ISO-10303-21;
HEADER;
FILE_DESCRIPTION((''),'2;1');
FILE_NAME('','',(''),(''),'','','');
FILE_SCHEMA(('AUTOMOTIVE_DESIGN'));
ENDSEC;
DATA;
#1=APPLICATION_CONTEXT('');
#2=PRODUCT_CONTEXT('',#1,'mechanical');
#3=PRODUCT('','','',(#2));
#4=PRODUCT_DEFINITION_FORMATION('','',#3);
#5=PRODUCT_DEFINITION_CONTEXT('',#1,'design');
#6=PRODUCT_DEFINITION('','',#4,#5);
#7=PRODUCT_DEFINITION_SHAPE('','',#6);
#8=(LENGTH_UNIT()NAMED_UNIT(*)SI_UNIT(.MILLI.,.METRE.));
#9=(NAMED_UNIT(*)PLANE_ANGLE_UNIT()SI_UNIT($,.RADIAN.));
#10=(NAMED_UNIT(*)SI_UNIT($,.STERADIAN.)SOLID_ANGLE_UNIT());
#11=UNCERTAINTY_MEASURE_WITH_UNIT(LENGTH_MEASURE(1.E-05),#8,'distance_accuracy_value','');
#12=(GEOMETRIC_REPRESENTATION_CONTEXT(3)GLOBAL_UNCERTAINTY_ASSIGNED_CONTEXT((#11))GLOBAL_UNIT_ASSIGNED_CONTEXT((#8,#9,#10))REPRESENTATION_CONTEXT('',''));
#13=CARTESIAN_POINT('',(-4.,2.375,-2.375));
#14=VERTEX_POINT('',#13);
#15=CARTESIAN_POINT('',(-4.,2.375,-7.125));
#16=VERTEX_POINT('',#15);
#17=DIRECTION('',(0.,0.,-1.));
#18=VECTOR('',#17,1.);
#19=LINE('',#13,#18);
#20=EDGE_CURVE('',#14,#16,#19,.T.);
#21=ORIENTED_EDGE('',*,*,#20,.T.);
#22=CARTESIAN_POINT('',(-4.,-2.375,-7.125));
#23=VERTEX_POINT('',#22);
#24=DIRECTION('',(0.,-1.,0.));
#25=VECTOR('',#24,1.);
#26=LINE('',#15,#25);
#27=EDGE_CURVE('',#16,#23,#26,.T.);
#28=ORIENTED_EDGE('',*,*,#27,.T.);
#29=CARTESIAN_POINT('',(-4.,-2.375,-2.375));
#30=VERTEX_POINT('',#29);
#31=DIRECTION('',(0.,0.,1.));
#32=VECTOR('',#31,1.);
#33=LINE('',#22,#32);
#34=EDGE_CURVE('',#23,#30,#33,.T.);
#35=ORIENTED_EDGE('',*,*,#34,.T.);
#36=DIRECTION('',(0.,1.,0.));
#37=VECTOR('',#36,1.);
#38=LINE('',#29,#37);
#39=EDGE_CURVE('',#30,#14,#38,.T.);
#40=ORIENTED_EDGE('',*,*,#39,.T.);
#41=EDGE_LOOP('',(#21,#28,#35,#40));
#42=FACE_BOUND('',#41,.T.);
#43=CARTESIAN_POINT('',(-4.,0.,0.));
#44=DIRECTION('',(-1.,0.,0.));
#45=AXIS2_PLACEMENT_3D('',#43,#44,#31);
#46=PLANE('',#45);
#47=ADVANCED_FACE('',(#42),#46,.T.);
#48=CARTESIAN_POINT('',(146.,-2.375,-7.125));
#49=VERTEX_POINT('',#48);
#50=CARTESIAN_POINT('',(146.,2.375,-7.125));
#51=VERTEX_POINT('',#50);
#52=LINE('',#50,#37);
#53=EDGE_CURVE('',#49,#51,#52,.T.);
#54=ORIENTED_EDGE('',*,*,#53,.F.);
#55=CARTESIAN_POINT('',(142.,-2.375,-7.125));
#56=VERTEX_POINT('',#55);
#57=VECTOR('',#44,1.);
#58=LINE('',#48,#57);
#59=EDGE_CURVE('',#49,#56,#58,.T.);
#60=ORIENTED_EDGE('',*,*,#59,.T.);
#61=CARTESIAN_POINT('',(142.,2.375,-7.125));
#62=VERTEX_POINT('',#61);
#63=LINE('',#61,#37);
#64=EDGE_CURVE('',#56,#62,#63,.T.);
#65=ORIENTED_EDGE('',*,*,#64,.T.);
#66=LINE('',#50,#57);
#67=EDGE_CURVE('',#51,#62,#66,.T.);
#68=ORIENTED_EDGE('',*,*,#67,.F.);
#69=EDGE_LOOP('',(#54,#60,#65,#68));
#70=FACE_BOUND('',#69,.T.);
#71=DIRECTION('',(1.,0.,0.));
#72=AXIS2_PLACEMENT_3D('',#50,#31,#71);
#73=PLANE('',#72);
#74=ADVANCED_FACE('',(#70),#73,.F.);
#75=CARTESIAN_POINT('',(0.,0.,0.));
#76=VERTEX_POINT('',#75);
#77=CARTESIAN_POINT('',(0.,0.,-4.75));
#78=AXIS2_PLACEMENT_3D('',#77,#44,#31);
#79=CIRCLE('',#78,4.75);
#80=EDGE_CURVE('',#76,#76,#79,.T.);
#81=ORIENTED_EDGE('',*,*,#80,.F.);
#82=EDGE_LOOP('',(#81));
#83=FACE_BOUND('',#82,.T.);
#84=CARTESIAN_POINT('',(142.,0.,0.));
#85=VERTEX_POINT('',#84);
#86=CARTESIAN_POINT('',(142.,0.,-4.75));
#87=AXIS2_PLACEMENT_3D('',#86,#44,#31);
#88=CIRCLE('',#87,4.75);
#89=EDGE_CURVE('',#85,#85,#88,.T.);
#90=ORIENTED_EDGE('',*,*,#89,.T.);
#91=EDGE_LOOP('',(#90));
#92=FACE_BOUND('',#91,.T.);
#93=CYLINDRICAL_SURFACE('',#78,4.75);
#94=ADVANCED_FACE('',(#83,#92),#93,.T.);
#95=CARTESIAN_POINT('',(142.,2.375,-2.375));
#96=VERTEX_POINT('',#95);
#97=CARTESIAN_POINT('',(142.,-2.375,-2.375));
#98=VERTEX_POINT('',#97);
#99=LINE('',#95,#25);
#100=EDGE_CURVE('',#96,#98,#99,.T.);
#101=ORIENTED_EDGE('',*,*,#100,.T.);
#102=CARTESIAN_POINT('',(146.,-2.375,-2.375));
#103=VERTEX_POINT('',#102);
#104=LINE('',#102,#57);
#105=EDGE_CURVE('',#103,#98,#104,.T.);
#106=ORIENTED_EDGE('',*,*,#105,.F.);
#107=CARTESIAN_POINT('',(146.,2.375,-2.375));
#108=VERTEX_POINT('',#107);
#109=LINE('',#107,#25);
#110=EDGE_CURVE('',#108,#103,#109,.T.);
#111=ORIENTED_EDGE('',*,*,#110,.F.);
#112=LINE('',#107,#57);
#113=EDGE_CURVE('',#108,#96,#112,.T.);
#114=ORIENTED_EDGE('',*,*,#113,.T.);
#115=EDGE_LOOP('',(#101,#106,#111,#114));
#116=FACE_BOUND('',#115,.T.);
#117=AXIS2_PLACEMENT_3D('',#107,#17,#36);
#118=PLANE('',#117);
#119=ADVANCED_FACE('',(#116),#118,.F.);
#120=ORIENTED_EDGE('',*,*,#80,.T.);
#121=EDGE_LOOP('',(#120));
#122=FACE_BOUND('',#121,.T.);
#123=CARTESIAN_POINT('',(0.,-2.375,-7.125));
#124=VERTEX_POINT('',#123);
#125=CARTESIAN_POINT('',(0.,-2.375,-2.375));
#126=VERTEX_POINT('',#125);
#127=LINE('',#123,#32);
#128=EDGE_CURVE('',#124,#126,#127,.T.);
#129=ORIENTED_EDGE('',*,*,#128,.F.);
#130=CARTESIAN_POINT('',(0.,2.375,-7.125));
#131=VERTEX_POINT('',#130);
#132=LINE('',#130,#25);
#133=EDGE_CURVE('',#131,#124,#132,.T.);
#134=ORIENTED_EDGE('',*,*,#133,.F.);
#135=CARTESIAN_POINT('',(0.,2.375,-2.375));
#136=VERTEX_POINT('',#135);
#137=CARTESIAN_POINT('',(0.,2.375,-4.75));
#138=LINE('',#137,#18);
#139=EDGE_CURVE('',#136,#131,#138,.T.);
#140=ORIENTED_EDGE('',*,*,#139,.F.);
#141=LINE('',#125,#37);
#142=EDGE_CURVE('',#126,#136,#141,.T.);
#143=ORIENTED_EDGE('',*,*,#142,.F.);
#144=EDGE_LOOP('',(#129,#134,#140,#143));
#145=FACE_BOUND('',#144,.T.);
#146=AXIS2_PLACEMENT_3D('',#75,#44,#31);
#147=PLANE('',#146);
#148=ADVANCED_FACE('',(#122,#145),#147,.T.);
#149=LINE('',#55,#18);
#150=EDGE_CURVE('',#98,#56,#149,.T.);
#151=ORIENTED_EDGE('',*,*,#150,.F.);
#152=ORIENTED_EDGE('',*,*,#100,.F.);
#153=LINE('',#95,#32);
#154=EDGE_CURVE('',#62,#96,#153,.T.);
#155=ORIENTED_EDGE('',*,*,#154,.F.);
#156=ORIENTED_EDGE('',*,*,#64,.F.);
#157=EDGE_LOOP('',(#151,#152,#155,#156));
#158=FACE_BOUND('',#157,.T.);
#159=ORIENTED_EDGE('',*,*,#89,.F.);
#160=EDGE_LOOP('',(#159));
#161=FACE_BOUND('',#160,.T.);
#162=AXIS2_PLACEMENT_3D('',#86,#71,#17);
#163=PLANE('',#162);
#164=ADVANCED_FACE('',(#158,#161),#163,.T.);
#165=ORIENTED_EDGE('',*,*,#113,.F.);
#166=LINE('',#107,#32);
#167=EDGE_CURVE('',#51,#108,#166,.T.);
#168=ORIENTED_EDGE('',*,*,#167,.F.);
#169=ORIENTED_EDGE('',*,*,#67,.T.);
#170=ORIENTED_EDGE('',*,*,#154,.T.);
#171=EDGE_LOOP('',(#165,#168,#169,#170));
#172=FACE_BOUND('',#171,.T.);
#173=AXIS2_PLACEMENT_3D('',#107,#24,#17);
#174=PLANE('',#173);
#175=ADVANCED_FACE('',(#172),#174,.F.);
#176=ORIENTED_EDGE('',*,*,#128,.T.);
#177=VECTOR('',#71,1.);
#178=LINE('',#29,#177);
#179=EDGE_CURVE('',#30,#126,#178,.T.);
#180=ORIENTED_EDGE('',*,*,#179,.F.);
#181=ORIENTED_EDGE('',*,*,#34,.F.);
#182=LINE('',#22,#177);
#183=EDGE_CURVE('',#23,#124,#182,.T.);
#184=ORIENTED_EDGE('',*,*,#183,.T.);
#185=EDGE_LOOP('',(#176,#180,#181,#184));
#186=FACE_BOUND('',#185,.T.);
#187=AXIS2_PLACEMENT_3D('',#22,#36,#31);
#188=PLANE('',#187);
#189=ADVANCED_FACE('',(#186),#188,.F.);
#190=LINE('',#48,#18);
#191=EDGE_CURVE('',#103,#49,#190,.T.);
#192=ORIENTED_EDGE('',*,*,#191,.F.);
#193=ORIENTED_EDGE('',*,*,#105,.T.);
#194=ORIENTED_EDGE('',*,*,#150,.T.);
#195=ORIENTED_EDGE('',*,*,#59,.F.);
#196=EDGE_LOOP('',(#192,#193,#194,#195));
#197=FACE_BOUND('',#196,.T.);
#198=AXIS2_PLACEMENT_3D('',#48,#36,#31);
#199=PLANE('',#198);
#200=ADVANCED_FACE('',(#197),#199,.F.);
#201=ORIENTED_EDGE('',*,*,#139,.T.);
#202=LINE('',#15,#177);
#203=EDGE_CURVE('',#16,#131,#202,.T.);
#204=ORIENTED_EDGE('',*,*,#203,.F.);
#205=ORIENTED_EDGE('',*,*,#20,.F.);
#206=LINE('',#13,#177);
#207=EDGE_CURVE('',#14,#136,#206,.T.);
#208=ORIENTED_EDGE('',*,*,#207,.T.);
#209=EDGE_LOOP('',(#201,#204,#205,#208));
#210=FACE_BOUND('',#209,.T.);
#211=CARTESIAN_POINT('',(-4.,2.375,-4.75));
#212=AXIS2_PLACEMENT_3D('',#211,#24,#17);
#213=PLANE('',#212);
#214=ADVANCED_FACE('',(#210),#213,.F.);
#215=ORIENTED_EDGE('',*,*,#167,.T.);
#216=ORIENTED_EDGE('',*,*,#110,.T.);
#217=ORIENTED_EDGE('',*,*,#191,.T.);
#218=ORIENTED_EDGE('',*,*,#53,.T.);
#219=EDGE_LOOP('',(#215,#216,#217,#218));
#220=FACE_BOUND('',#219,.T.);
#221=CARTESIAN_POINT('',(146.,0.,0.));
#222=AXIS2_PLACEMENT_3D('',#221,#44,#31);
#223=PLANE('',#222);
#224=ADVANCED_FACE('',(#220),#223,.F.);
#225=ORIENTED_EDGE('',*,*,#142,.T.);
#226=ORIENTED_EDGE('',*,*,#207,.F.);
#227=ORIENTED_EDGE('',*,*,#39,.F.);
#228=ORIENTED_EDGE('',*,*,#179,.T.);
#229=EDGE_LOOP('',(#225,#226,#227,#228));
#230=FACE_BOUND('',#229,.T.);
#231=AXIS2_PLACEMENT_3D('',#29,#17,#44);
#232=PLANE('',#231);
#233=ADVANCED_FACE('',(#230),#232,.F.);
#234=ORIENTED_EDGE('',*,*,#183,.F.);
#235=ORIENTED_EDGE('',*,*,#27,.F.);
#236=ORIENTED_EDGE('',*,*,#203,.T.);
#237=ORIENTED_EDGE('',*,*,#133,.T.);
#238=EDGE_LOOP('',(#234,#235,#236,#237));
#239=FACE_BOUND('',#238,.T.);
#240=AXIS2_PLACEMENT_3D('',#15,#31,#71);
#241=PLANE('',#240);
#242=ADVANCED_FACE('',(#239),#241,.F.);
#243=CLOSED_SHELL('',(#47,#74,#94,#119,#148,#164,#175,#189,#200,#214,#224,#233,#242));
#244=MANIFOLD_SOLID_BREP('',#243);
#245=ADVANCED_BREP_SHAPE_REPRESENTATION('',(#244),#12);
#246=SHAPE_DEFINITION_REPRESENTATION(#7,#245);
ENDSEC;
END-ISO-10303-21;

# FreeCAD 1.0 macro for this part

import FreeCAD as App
import Part
import Sketcher

V = App.Vector


def add_polygon(sketch, points):
    """Adds a closed chain of lines whose ends are joined by coincident constraints."""
    first, n = sketch.GeometryCount, len(points)
    for a, b in zip(points, points[1:] + points[:1]):
        sketch.addGeometry(Part.LineSegment(App.Vector(*a, 0), App.Vector(*b, 0)), False)
    for i in range(n):
        sketch.addConstraint(Sketcher.Constraint("Coincident", first + i, 2, first + (i + 1) % n, 1))

doc = App.newDocument("Part")
body = doc.addObject("PartDesign::Body", "Body")

# Sketch on XZ plane
sketch1 = doc.addObject("Sketcher::SketchObject", "Sketch")
body.addObject(sketch1)
sketch1.AttachmentSupport = (doc.XZ_Plane, [""])
sketch1.MapMode = "FlatFace"
add_polygon(sketch1, [(0, -4.8), (0, 0), (142, 0), (142, -4.8)])  # lines 0-3
sketch1.addGeometry(Part.LineSegment(V(0, -4.8, 0), V(142, -4.8, 0)), True)  # axis
sketch1.addConstraint([
    Sketcher.Constraint("Vertical", 0),
    Sketcher.Constraint("Horizontal", 1),
    Sketcher.Constraint("Vertical", 2),
    Sketcher.Constraint("Horizontal", 3),
    Sketcher.Constraint("Horizontal", 4),
    Sketcher.Constraint("Coincident", 0, 2, -1, 1),
    Sketcher.Constraint("Coincident", 4, 1, 3, 2),
    Sketcher.Constraint("Vertical", 1, 2, 4, 2),
    Sketcher.Constraint("DistanceX", 1, 1, 1, 2, 142.0),
    Sketcher.Constraint("DistanceY", 0, 1, 0, 2, 4.75),
])
revolution = doc.addObject("PartDesign::Revolution", "Revolution")
body.addObject(revolution)
revolution.Profile = sketch1
revolution.ReferenceAxis = (sketch1, ["Axis0"])
revolution.Angle = 360

# Sketch on YZ plane
sketch2 = doc.addObject("Sketcher::SketchObject", "Sketch001")
body.addObject(sketch2)
sketch2.AttachmentSupport = (doc.YZ_Plane, [""])
sketch2.MapMode = "FlatFace"
sketch2.AttachmentOffset = App.Placement(V(0, 0, 142), App.Rotation())
add_polygon(sketch2, [(2.4, -2.4), (-2.4, -2.4), (-2.4, -7.1), (2.4, -7.1)])  # lines 0-3
sketch2.addConstraint([
    Sketcher.Constraint("Horizontal", 0),
    Sketcher.Constraint("Vertical", 1),
    Sketcher.Constraint("Horizontal", 2),
    Sketcher.Constraint("Vertical", 3),
    Sketcher.Constraint("Equal", 2, 1),
    Sketcher.Constraint("DistanceX", 0, 2, 0, 1, 4.75),
    Sketcher.Constraint("DistanceX", 0, 2, -1, 1, 2.375),
    Sketcher.Constraint("DistanceY", 0, 2, -1, 1, 2.375),
])
pad1 = doc.addObject("PartDesign::Pad", "Pad")
body.addObject(pad1)
pad1.Profile = sketch2
pad1.Length = 4

# Sketch on YZ plane
sketch3 = doc.addObject("Sketcher::SketchObject", "Sketch002")
body.addObject(sketch3)
sketch3.AttachmentSupport = (doc.YZ_Plane, [""])
sketch3.MapMode = "FlatFace"
add_polygon(sketch3, [(2.4, -7.1), (-2.4, -7.1), (-2.4, -2.4), (2.4, -2.4)])  # lines 0-3
sketch3.addConstraint([
    Sketcher.Constraint("Horizontal", 0),
    Sketcher.Constraint("Vertical", 1),
    Sketcher.Constraint("Horizontal", 2),
    Sketcher.Constraint("Vertical", 3),
    Sketcher.Constraint("Equal", 2, 1),
    Sketcher.Constraint("DistanceX", 0, 2, 0, 1, 4.75),
    Sketcher.Constraint("DistanceX", 0, 2, -1, 1, 2.375),
    Sketcher.Constraint("DistanceY", 0, 2, -1, 1, 7.125),
])
pad2 = doc.addObject("PartDesign::Pad", "Pad001")
body.addObject(pad2)
pad2.Profile = sketch3
pad2.Length = 4
pad2.Reversed = True

doc.recompute()
